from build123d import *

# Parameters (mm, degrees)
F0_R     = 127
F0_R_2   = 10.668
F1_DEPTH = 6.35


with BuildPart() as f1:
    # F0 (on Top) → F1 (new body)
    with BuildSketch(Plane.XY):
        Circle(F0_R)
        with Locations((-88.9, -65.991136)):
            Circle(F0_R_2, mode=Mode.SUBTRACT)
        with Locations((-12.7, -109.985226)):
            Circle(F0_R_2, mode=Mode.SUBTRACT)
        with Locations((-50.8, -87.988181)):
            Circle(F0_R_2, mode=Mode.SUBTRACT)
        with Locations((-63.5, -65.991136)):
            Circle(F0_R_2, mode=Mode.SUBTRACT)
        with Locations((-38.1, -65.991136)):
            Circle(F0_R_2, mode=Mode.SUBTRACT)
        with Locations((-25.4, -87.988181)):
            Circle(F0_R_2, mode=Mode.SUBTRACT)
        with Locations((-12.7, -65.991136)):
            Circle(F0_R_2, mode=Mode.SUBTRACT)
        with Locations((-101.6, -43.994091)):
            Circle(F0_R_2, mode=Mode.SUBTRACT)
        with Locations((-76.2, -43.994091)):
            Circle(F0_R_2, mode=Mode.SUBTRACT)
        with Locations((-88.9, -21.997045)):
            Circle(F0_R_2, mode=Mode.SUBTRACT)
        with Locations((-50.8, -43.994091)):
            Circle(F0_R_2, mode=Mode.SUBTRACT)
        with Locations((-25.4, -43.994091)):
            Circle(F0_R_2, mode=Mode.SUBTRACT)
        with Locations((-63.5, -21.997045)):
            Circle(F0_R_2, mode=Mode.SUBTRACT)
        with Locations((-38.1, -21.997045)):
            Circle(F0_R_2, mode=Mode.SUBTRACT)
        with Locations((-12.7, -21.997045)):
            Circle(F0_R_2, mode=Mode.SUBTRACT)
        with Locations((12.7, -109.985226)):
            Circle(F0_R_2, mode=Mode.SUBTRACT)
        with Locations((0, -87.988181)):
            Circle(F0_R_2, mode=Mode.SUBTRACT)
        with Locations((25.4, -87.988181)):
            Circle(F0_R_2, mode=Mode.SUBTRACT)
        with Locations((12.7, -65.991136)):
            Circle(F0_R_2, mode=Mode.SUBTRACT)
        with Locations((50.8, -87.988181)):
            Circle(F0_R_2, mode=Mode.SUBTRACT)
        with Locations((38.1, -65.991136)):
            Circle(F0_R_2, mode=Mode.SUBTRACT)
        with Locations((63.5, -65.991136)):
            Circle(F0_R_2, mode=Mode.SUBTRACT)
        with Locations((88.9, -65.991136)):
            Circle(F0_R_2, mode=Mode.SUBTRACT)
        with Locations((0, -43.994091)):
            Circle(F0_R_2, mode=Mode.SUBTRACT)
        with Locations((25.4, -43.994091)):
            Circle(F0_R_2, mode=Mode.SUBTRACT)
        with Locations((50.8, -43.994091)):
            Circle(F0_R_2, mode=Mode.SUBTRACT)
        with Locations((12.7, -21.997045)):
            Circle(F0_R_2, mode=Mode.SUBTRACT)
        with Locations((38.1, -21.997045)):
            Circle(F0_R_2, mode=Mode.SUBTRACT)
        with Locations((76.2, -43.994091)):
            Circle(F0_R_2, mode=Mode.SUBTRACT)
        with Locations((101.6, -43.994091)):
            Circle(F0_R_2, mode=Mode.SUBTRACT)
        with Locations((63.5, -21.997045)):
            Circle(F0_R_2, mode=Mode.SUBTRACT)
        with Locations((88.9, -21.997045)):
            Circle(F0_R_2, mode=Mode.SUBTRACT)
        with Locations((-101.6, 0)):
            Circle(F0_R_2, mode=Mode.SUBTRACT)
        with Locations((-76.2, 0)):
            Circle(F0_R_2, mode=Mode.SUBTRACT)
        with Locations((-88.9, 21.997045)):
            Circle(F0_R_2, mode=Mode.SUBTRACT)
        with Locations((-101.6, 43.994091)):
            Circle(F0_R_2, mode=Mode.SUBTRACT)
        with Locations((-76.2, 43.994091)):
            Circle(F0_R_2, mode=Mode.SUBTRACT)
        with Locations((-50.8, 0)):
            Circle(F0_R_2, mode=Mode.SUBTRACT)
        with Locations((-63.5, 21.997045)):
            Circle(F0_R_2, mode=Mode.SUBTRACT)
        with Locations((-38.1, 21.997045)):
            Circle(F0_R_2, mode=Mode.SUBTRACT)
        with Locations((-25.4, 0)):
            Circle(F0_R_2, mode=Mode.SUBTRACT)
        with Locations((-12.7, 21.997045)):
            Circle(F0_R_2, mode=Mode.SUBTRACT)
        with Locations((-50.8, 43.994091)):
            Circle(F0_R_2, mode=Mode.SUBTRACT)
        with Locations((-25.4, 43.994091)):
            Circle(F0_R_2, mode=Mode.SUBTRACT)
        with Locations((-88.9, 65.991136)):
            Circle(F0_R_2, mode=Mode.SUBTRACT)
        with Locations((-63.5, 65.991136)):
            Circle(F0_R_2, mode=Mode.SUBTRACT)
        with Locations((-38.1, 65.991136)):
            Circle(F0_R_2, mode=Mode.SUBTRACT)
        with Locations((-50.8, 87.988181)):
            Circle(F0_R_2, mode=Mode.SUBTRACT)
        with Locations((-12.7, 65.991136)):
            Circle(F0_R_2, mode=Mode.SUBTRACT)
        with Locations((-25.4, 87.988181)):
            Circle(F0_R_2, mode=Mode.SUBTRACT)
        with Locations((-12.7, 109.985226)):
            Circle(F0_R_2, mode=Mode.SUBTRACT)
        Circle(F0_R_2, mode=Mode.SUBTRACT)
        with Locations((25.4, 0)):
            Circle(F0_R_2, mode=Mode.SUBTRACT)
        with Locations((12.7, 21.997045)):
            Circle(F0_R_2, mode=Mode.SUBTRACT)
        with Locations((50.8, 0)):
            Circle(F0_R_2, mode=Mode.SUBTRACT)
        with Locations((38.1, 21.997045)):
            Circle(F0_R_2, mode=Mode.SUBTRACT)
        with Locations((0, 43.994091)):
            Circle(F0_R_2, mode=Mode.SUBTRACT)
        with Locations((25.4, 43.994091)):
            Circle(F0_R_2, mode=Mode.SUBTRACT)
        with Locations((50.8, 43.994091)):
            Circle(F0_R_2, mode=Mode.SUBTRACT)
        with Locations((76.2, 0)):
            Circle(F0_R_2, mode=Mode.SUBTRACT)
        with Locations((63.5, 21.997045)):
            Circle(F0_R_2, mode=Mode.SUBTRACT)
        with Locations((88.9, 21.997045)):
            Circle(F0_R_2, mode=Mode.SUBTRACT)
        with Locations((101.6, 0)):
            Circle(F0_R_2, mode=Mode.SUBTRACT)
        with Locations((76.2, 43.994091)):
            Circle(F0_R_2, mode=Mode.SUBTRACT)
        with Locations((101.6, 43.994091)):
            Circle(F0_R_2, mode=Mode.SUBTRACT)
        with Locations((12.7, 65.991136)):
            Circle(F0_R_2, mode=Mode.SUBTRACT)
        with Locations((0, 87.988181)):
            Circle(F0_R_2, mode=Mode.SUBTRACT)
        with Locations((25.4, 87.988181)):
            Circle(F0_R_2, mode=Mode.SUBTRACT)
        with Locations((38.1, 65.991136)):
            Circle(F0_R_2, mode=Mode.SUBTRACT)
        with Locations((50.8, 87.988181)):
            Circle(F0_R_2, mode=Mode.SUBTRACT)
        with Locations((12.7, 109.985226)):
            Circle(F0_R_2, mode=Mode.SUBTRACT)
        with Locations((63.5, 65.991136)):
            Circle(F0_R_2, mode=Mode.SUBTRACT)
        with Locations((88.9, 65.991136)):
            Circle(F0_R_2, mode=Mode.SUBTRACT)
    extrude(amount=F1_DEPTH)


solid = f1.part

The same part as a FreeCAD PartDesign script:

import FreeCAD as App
import Part
import Sketcher
Q = App.Units.Quantity

doc = App.newDocument("Part")
body = doc.addObject("PartDesign::Body", "Body")

# Sketch on XY plane
sketch1 = body.newObject("Sketcher::SketchObject", "Sketch")
sketch1.AttachmentSupport = (doc.getObject("XY_Plane"), [""])
sketch1.MapMode = "FlatFace"
sketch1.addGeometry([
    Part.Circle(App.Vector(0, 0, 0), App.Vector(0, 0, 1), 127),  # 0
    Part.Circle(App.Vector(-89, -66, 0), App.Vector(0, 0, 1), 11),  # 1
    Part.Circle(App.Vector(-64, -66, 0), App.Vector(0, 0, 1), 11),  # 2
    Part.Circle(App.Vector(-13, -110, 0), App.Vector(0, 0, 1), 11),  # 3
    Part.Circle(App.Vector(-51, -88, 0), App.Vector(0, 0, 1), 11),  # 4
    Part.Circle(App.Vector(-38, -66, 0), App.Vector(0, 0, 1), 11),  # 5
    Part.Circle(App.Vector(-25, -88, 0), App.Vector(0, 0, 1), 11),  # 6
    Part.Circle(App.Vector(-13, -66, 0), App.Vector(0, 0, 1), 11),  # 7
    Part.Circle(App.Vector(-102, -44, 0), App.Vector(0, 0, 1), 11),  # 8
    Part.Circle(App.Vector(-76, -44, 0), App.Vector(0, 0, 1), 11),  # 9
    Part.Circle(App.Vector(-89, -22, 0), App.Vector(0, 0, 1), 11),  # 10
    Part.Circle(App.Vector(-64, -22, 0), App.Vector(0, 0, 1), 11),  # 11
    Part.Circle(App.Vector(-51, -44, 0), App.Vector(0, 0, 1), 11),  # 12
    Part.Circle(App.Vector(-25, -44, 0), App.Vector(0, 0, 1), 11),  # 13
    Part.Circle(App.Vector(-38, -22, 0), App.Vector(0, 0, 1), 11),  # 14
    Part.Circle(App.Vector(-13, -22, 0), App.Vector(0, 0, 1), 11),  # 15
    Part.Circle(App.Vector(13, -110, 0), App.Vector(0, 0, 1), 11),  # 16
    Part.Circle(App.Vector(0, -88, 0), App.Vector(0, 0, 1), 11),  # 17
    Part.Circle(App.Vector(25, -88, 0), App.Vector(0, 0, 1), 11),  # 18
    Part.Circle(App.Vector(13, -66, 0), App.Vector(0, 0, 1), 11),  # 19
    Part.Circle(App.Vector(51, -88, 0), App.Vector(0, 0, 1), 11),  # 20
    Part.Circle(App.Vector(38, -66, 0), App.Vector(0, 0, 1), 11),  # 21
    Part.Circle(App.Vector(64, -66, 0), App.Vector(0, 0, 1), 11),  # 22
    Part.Circle(App.Vector(89, -66, 0), App.Vector(0, 0, 1), 11),  # 23
    Part.Circle(App.Vector(0, -44, 0), App.Vector(0, 0, 1), 11),  # 24
    Part.Circle(App.Vector(25, -44, 0), App.Vector(0, 0, 1), 11),  # 25
    Part.Circle(App.Vector(51, -44, 0), App.Vector(0, 0, 1), 11),  # 26
    Part.Circle(App.Vector(13, -22, 0), App.Vector(0, 0, 1), 11),  # 27
    Part.Circle(App.Vector(38, -22, 0), App.Vector(0, 0, 1), 11),  # 28
    Part.Circle(App.Vector(76, -44, 0), App.Vector(0, 0, 1), 11),  # 29
    Part.Circle(App.Vector(102, -44, 0), App.Vector(0, 0, 1), 11),  # 30
    Part.Circle(App.Vector(64, -22, 0), App.Vector(0, 0, 1), 11),  # 31
    Part.Circle(App.Vector(89, -22, 0), App.Vector(0, 0, 1), 11),  # 32
    Part.Circle(App.Vector(-102, 0, 0), App.Vector(0, 0, 1), 11),  # 33
    Part.Circle(App.Vector(-89, 22, 0), App.Vector(0, 0, 1), 11),  # 34
    Part.Circle(App.Vector(-76, 0, 0), App.Vector(0, 0, 1), 11),  # 35
    Part.Circle(App.Vector(-64, 22, 0), App.Vector(0, 0, 1), 11),  # 36
    Part.Circle(App.Vector(-102, 44, 0), App.Vector(0, 0, 1), 11),  # 37
    Part.Circle(App.Vector(-76, 44, 0), App.Vector(0, 0, 1), 11),  # 38
    Part.Circle(App.Vector(-51, 0, 0), App.Vector(0, 0, 1), 11),  # 39
    Part.Circle(App.Vector(-38, 22, 0), App.Vector(0, 0, 1), 11),  # 40
    Part.Circle(App.Vector(-25, 0, 0), App.Vector(0, 0, 1), 11),  # 41
    Part.Circle(App.Vector(-13, 22, 0), App.Vector(0, 0, 1), 11),  # 42
    Part.Circle(App.Vector(-51, 44, 0), App.Vector(0, 0, 1), 11),  # 43
    Part.Circle(App.Vector(-25, 44, 0), App.Vector(0, 0, 1), 11),  # 44
    Part.Circle(App.Vector(-89, 66, 0), App.Vector(0, 0, 1), 11),  # 45
    Part.Circle(App.Vector(-64, 66, 0), App.Vector(0, 0, 1), 11),  # 46
    Part.Circle(App.Vector(-38, 66, 0), App.Vector(0, 0, 1), 11),  # 47
    Part.Circle(App.Vector(-51, 88, 0), App.Vector(0, 0, 1), 11),  # 48
    Part.Circle(App.Vector(-13, 66, 0), App.Vector(0, 0, 1), 11),  # 49
    Part.Circle(App.Vector(-25, 88, 0), App.Vector(0, 0, 1), 11),  # 50
    Part.Circle(App.Vector(-13, 110, 0), App.Vector(0, 0, 1), 11),  # 51
    Part.Circle(App.Vector(0, 0, 0), App.Vector(0, 0, 1), 11),  # 52
    Part.Circle(App.Vector(25, 0, 0), App.Vector(0, 0, 1), 11),  # 53
    Part.Circle(App.Vector(13, 22, 0), App.Vector(0, 0, 1), 11),  # 54
    Part.Circle(App.Vector(51, 0, 0), App.Vector(0, 0, 1), 11),  # 55
    Part.Circle(App.Vector(38, 22, 0), App.Vector(0, 0, 1), 11),  # 56
    Part.Circle(App.Vector(0, 44, 0), App.Vector(0, 0, 1), 11),  # 57
    Part.Circle(App.Vector(25, 44, 0), App.Vector(0, 0, 1), 11),  # 58
    Part.Circle(App.Vector(51, 44, 0), App.Vector(0, 0, 1), 11),  # 59
    Part.Circle(App.Vector(76, 0, 0), App.Vector(0, 0, 1), 11),  # 60
    Part.Circle(App.Vector(64, 22, 0), App.Vector(0, 0, 1), 11),  # 61
    Part.Circle(App.Vector(102, 0, 0), App.Vector(0, 0, 1), 11),  # 62
    Part.Circle(App.Vector(89, 22, 0), App.Vector(0, 0, 1), 11),  # 63
    Part.Circle(App.Vector(76, 44, 0), App.Vector(0, 0, 1), 11),  # 64
    Part.Circle(App.Vector(102, 44, 0), App.Vector(0, 0, 1), 11),  # 65
    Part.Circle(App.Vector(13, 66, 0), App.Vector(0, 0, 1), 11),  # 66
    Part.Circle(App.Vector(0, 88, 0), App.Vector(0, 0, 1), 11),  # 67
    Part.Circle(App.Vector(25, 88, 0), App.Vector(0, 0, 1), 11),  # 68
    Part.Circle(App.Vector(38, 66, 0), App.Vector(0, 0, 1), 11),  # 69
    Part.Circle(App.Vector(51, 88, 0), App.Vector(0, 0, 1), 11),  # 70
    Part.Circle(App.Vector(13, 110, 0), App.Vector(0, 0, 1), 11),  # 71
    Part.Circle(App.Vector(64, 66, 0), App.Vector(0, 0, 1), 11),  # 72
    Part.Circle(App.Vector(89, 66, 0), App.Vector(0, 0, 1), 11),  # 73
], False)
sketch1.addConstraint([
    Sketcher.Constraint("Coincident", 0, 3, -1, 1),
    Sketcher.Constraint("Coincident", 52, 3, -1, 1),
    Sketcher.Constraint("Equal", 1, 2),
    Sketcher.Constraint("Equal", 2, 3),
    Sketcher.Constraint("Equal", 3, 4),
    Sketcher.Constraint("Equal", 4, 5),
    Sketcher.Constraint("Equal", 5, 6),
    Sketcher.Constraint("Equal", 6, 7),
    Sketcher.Constraint("Equal", 7, 8),
    Sketcher.Constraint("Equal", 8, 9),
    Sketcher.Constraint("Equal", 9, 10),
    Sketcher.Constraint("Equal", 10, 11),
    Sketcher.Constraint("Equal", 11, 12),
    Sketcher.Constraint("Equal", 12, 13),
    Sketcher.Constraint("Equal", 13, 14),
    Sketcher.Constraint("Equal", 14, 15),
    Sketcher.Constraint("Equal", 15, 16),
    Sketcher.Constraint("Equal", 16, 17),
    Sketcher.Constraint("Equal", 17, 18),
    Sketcher.Constraint("Equal", 18, 19),
    Sketcher.Constraint("Equal", 19, 20),
    Sketcher.Constraint("Equal", 20, 21),
    Sketcher.Constraint("Equal", 21, 22),
    Sketcher.Constraint("Equal", 22, 23),
    Sketcher.Constraint("Equal", 23, 24),
    Sketcher.Constraint("Equal", 24, 25),
    Sketcher.Constraint("Equal", 25, 26),
    Sketcher.Constraint("Equal", 26, 27),
    Sketcher.Constraint("Equal", 27, 28),
    Sketcher.Constraint("Equal", 28, 29),
    Sketcher.Constraint("Equal", 29, 30),
    Sketcher.Constraint("Equal", 30, 31),
    Sketcher.Constraint("Equal", 31, 32),
    Sketcher.Constraint("Equal", 32, 33),
    Sketcher.Constraint("Equal", 33, 34),
    Sketcher.Constraint("Equal", 34, 35),
    Sketcher.Constraint("Equal", 35, 36),
    Sketcher.Constraint("Equal", 36, 37),
    Sketcher.Constraint("Equal", 37, 38),
    Sketcher.Constraint("Equal", 38, 39),
    Sketcher.Constraint("Equal", 39, 40),
    Sketcher.Constraint("Equal", 40, 41),
    Sketcher.Constraint("Equal", 41, 42),
    Sketcher.Constraint("Equal", 42, 43),
    Sketcher.Constraint("Equal", 43, 44),
    Sketcher.Constraint("Equal", 44, 45),
    Sketcher.Constraint("Equal", 45, 46),
    Sketcher.Constraint("Equal", 46, 47),
    Sketcher.Constraint("Equal", 47, 48),
    Sketcher.Constraint("Equal", 48, 49),
    Sketcher.Constraint("Equal", 49, 50),
    Sketcher.Constraint("Equal", 50, 51),
    Sketcher.Constraint("Equal", 51, 52),
    Sketcher.Constraint("Equal", 52, 53),
    Sketcher.Constraint("Equal", 53, 54),
    Sketcher.Constraint("Equal", 54, 55),
    Sketcher.Constraint("Equal", 55, 56),
    Sketcher.Constraint("Equal", 56, 57),
    Sketcher.Constraint("Equal", 57, 58),
    Sketcher.Constraint("Equal", 58, 59),
    Sketcher.Constraint("Equal", 59, 60),
    Sketcher.Constraint("Equal", 60, 61),
    Sketcher.Constraint("Equal", 61, 62),
    Sketcher.Constraint("Equal", 62, 63),
    Sketcher.Constraint("Equal", 63, 64),
    Sketcher.Constraint("Equal", 64, 65),
    Sketcher.Constraint("Equal", 65, 66),
    Sketcher.Constraint("Equal", 66, 67),
    Sketcher.Constraint("Equal", 67, 68),
    Sketcher.Constraint("Equal", 68, 69),
    Sketcher.Constraint("Equal", 69, 70),
    Sketcher.Constraint("Equal", 70, 71),
    Sketcher.Constraint("Equal", 71, 72),
    Sketcher.Constraint("Equal", 72, 73),
    Sketcher.Constraint("Symmetric", 32, 3, 34, 3, -1, 1),
    Sketcher.Constraint("Symmetric", 31, 3, 36, 3, -1, 1),
    Sketcher.Constraint("Symmetric", 30, 3, 37, 3, -1, 1),
    Sketcher.Constraint("Symmetric", 29, 3, 38, 3, -1, 1),
    Sketcher.Constraint("Symmetric", 28, 3, 40, 3, -1, 1),
    Sketcher.Constraint("Symmetric", 27, 3, 42, 3, -1, 1),
    Sketcher.Constraint("Symmetric", 26, 3, 43, 3, -1, 1),
    Sketcher.Constraint("Symmetric", 25, 3, 44, 3, -1, 1),
    Sketcher.Constraint("Symmetric", 23, 3, 45, 3, -1, 1),
    Sketcher.Constraint("Symmetric", 22, 3, 46, 3, -1, 1),
    Sketcher.Constraint("Symmetric", 21, 3, 47, 3, -1, 1),
    Sketcher.Constraint("Symmetric", 20, 3, 48, 3, -1, 1),
    Sketcher.Constraint("Symmetric", 19, 3, 49, 3, -1, 1),
    Sketcher.Constraint("Symmetric", 18, 3, 50, 3, -1, 1),
    Sketcher.Constraint("Symmetric", 16, 3, 51, 3, -1, 1),
    Sketcher.Constraint("Symmetric", 41, 3, 53, 3, -1, 1),
    Sketcher.Constraint("Symmetric", 15, 3, 54, 3, -1, 1),
    Sketcher.Constraint("Symmetric", 39, 3, 55, 3, -1, 1),
    Sketcher.Constraint("Symmetric", 14, 3, 56, 3, -1, 1),
    Sketcher.Constraint("Symmetric", 24, 3, 57, 3, -1, 1),
    Sketcher.Constraint("Symmetric", 13, 3, 58, 3, -1, 1),
    Sketcher.Constraint("Symmetric", 12, 3, 59, 3, -1, 1),
    Sketcher.Constraint("Symmetric", 35, 3, 60, 3, -1, 1),
    Sketcher.Constraint("Symmetric", 11, 3, 61, 3, -1, 1),
    Sketcher.Constraint("Symmetric", 33, 3, 62, 3, -1, 1),
    Sketcher.Constraint("Symmetric", 10, 3, 63, 3, -1, 1),
    Sketcher.Constraint("Symmetric", 9, 3, 64, 3, -1, 1),
    Sketcher.Constraint("Symmetric", 8, 3, 65, 3, -1, 1),
    Sketcher.Constraint("Symmetric", 7, 3, 66, 3, -1, 1),
    Sketcher.Constraint("Symmetric", 17, 3, 67, 3, -1, 1),
    Sketcher.Constraint("Symmetric", 6, 3, 68, 3, -1, 1),
    Sketcher.Constraint("Symmetric", 5, 3, 69, 3, -1, 1),
    Sketcher.Constraint("Symmetric", 4, 3, 70, 3, -1, 1),
    Sketcher.Constraint("Symmetric", 3, 3, 71, 3, -1, 1),
    Sketcher.Constraint("Symmetric", 2, 3, 72, 3, -1, 1),
    Sketcher.Constraint("Symmetric", 1, 3, 73, 3, -1, 1),
    Sketcher.Constraint("Symmetric", 3, 3, 16, 3, -2),
    Sketcher.Constraint("Symmetric", 6, 3, 18, 3, -2),
    Sketcher.Constraint("Symmetric", 7, 3, 19, 3, -2),
    Sketcher.Constraint("Symmetric", 4, 3, 20, 3, -2),
    Sketcher.Constraint("Symmetric", 5, 3, 21, 3, -2),
    Sketcher.Constraint("Symmetric", 2, 3, 22, 3, -2),
    Sketcher.Constraint("Symmetric", 1, 3, 23, 3, -2),
    Sketcher.Constraint("Symmetric", 13, 3, 25, 3, -2),
    Sketcher.Constraint("Symmetric", 12, 3, 26, 3, -2),
    Sketcher.Constraint("Symmetric", 15, 3, 27, 3, -2),
    Sketcher.Constraint("Symmetric", 14, 3, 28, 3, -2),
    Sketcher.Constraint("Symmetric", 9, 3, 29, 3, -2),
    Sketcher.Constraint("Symmetric", 8, 3, 30, 3, -2),
    Sketcher.Constraint("Symmetric", 11, 3, 31, 3, -2),
    Sketcher.Constraint("Symmetric", 10, 3, 32, 3, -2),
    Sketcher.Constraint("PointOnObject", 17, 3, -2),
    Sketcher.Constraint("PointOnObject", 24, 3, -2),
    Sketcher.Constraint("PointOnObject", 33, 3, -1),
    Sketcher.Constraint("PointOnObject", 35, 3, -1),
    Sketcher.Constraint("PointOnObject", 39, 3, -1),
    Sketcher.Constraint("PointOnObject", 41, 3, -1),
    Sketcher.Constraint("Horizontal", 1, 3, 2, 3),
    Sketcher.Constraint("Horizontal", 2, 3, 5, 3),
    Sketcher.Constraint("Horizontal", 4, 3, 6, 3),
    Sketcher.Constraint("Horizontal", 5, 3, 7, 3),
    Sketcher.Constraint("Horizontal", 8, 3, 9, 3),
    Sketcher.Constraint("Horizontal", 10, 3, 11, 3),
    Sketcher.Constraint("Horizontal", 9, 3, 12, 3),
    Sketcher.Constraint("Horizontal", 12, 3, 13, 3),
    Sketcher.Constraint("Horizontal", 11, 3, 14, 3),
    Sketcher.Constraint("Horizontal", 14, 3, 15, 3),
    Sketcher.Constraint("Horizontal", 6, 3, 17, 3),
    Sketcher.Constraint("Horizontal", 13, 3, 24, 3),
    Sketcher.Constraint("Vertical", 3, 3, 7, 3),
    Sketcher.Constraint("Vertical", 1, 3, 10, 3),
    Sketcher.Constraint("Vertical", 2, 3, 11, 3),
    Sketcher.Constraint("Vertical", 4, 3, 12, 3),
    Sketcher.Constraint("Vertical", 6, 3, 13, 3),
    Sketcher.Constraint("Vertical", 5, 3, 14, 3),
    Sketcher.Constraint("Vertical", 7, 3, 15, 3),
    Sketcher.Constraint("Vertical", 8, 3, 33, 3),
    Sketcher.Constraint("Vertical", 9, 3, 35, 3),
    Sketcher.Constraint("Vertical", 12, 3, 39, 3),
    Sketcher.Constraint("Vertical", 13, 3, 41, 3),
    Sketcher.Constraint("Diameter", 0, Q("10 in")),
    Sketcher.Constraint("Diameter", 1, Q("0.84 in")),
    Sketcher.Constraint("DistanceX", 4, 3, -1, 1, Q("2 in")),
    Sketcher.Constraint("DistanceX", 6, 3, -1, 1, Q("1 in")),
    Sketcher.Constraint("DistanceX", 8, 3, -1, 1, Q("4 in")),
    Sketcher.Constraint("DistanceX", 9, 3, -1, 1, Q("3 in")),
    Sketcher.Constraint("DistanceX", 1, 3, -1, 1, Q("3.5 in")),
    Sketcher.Constraint("DistanceX", 2, 3, -1, 1, Q("2.5 in")),
    Sketcher.Constraint("DistanceX", 3, 3, -1, 1, Q("0.5 in")),
    Sketcher.Constraint("DistanceX", 5, 3, -1, 1, Q("1.5 in")),
    Sketcher.Constraint("DistanceY", 4, 3, -1, 1, 87.988181),
    Sketcher.Constraint("DistanceY", 8, 3, -1, 1, 43.994091),
    Sketcher.Constraint("DistanceY", 1, 3, -1, 1, 65.991136),
    Sketcher.Constraint("DistanceY", 3, 3, -1, 1, 109.985226),
    Sketcher.Constraint("DistanceY", 10, 3, -1, 1, 21.997045),
])
pad1 = body.newObject("PartDesign::Pad", "Pad")
pad1.Profile = sketch1
pad1.Length = Q("0.25 in")

doc.recompute()
